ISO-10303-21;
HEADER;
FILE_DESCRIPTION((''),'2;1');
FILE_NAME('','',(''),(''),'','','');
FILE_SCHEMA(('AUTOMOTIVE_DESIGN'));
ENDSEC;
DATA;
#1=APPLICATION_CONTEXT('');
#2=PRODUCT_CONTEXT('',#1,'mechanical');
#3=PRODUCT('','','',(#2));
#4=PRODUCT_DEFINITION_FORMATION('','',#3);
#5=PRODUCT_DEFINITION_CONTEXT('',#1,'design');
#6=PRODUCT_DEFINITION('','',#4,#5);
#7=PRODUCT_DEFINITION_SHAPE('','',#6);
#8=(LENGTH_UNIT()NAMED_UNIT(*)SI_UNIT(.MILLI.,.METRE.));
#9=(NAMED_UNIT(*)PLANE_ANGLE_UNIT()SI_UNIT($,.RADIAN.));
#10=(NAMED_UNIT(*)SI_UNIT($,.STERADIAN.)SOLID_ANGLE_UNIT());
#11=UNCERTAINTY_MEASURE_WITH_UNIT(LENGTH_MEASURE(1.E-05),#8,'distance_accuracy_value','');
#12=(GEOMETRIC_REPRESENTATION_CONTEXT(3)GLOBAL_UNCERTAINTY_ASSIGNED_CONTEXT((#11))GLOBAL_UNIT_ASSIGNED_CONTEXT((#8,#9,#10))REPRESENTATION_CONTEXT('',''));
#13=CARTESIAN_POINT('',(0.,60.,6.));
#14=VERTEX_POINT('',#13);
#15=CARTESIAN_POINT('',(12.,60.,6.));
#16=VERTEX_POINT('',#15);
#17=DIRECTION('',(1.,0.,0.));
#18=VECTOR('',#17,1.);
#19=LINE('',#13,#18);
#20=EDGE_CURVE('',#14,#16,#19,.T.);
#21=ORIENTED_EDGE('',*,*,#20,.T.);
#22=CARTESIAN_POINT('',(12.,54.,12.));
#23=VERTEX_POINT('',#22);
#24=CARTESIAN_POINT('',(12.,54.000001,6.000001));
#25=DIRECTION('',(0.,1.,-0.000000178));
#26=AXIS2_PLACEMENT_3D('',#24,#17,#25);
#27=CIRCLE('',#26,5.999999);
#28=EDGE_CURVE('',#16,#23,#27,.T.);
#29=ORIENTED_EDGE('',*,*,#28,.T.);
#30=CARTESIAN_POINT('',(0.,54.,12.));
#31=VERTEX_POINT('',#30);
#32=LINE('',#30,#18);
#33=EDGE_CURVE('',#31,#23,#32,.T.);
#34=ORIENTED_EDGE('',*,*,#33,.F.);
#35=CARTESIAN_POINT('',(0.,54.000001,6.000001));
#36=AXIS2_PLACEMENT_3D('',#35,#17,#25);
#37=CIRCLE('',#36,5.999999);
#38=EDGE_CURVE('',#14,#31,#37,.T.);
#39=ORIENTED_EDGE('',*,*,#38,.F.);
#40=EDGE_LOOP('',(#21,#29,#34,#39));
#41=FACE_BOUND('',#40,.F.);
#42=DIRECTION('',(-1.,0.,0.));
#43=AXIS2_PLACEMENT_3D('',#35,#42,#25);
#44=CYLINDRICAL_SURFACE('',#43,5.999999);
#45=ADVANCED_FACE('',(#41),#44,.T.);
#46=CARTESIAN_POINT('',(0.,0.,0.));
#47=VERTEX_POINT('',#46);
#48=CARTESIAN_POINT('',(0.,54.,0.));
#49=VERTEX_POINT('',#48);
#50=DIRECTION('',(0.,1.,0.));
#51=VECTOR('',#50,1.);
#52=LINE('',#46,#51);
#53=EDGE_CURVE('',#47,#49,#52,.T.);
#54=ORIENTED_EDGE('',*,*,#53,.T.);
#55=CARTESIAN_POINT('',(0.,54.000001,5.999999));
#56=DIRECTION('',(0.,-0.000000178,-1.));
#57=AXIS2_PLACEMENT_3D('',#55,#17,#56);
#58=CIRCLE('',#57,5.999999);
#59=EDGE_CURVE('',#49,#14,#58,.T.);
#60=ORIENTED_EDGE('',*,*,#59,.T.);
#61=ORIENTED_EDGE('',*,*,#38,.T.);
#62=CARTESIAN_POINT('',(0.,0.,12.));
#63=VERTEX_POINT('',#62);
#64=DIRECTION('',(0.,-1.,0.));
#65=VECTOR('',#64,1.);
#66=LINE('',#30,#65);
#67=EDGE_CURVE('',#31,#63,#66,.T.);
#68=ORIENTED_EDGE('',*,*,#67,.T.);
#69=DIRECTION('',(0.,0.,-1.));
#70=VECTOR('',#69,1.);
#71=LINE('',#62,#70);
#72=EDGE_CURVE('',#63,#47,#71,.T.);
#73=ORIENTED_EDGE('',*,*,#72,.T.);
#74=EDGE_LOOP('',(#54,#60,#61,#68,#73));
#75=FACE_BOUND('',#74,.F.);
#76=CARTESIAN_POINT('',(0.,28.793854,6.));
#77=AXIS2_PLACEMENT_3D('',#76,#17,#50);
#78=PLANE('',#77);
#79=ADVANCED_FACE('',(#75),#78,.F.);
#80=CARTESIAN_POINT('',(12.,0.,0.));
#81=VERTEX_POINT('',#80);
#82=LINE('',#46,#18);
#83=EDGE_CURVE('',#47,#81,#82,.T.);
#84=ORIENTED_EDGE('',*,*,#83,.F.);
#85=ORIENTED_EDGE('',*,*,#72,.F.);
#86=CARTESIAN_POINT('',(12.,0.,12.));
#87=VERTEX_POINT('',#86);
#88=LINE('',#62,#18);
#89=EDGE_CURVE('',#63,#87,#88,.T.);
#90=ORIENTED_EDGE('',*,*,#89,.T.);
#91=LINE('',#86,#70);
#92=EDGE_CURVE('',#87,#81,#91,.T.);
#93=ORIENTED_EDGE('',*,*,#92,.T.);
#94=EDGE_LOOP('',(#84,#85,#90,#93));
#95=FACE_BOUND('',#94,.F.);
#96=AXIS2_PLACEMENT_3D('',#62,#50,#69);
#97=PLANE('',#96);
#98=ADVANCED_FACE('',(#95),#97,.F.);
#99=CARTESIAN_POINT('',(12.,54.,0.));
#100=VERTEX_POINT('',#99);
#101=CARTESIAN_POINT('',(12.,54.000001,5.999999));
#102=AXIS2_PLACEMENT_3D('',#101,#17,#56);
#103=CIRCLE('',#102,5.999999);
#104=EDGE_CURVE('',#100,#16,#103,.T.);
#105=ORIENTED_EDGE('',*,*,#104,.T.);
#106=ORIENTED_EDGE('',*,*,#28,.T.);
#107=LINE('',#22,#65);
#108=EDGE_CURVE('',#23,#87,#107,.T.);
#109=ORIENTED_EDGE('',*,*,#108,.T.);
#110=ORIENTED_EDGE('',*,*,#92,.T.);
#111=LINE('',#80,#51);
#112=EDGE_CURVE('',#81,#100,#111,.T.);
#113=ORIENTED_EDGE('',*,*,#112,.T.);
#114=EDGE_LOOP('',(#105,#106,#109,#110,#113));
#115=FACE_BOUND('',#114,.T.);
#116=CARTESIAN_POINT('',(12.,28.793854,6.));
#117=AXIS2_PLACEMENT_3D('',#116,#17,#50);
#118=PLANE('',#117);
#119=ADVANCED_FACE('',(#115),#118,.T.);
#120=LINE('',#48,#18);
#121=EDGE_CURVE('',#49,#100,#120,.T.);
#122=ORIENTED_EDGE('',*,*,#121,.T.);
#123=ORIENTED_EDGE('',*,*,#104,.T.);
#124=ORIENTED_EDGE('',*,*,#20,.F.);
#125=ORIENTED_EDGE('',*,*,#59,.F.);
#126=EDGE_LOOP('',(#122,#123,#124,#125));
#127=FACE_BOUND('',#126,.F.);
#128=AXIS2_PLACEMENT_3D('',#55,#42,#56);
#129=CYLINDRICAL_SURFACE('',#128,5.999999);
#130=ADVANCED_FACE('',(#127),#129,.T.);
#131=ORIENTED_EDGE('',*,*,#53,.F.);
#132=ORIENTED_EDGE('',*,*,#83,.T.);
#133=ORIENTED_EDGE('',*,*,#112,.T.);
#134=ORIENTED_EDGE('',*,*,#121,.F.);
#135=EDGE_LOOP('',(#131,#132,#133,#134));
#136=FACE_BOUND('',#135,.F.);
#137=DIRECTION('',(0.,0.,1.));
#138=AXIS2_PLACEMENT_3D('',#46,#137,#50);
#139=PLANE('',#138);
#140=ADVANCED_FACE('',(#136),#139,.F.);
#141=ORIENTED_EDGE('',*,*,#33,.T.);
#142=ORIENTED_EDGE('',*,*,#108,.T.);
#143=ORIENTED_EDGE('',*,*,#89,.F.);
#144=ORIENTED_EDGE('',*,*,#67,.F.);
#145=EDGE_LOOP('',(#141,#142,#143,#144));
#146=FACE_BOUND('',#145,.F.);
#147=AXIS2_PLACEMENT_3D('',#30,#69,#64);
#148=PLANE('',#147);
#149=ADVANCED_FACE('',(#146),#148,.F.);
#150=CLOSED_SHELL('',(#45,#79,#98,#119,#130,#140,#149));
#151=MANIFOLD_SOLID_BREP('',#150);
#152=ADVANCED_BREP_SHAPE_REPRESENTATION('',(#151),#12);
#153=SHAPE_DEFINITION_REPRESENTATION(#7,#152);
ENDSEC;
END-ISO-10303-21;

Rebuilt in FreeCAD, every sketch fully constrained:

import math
import FreeCAD as App
import Part
import Sketcher
Q = App.Units.Quantity

doc = App.newDocument("Part")
body = doc.addObject("PartDesign::Body", "Body")

# Sketch on YZ plane
sketch1 = body.newObject("Sketcher::SketchObject", "Sketch")
sketch1.AttachmentSupport = (doc.getObject("YZ_Plane"), [""])
sketch1.MapMode = "FlatFace"
sketch1.addGeometry([
    Part.LineSegment(App.Vector(0, 12, 0), App.Vector(0, 0, 0)),  # 0
    Part.LineSegment(App.Vector(0, 0, 0), App.Vector(54, 0, 0)),  # 1
    Part.ArcOfCircle(Part.Circle(App.Vector(54, 6, 0), App.Vector(0, 0, 1), 6), math.radians(-90), math.radians(0)),  # 2
    Part.ArcOfCircle(Part.Circle(App.Vector(54, 6, 0), App.Vector(0, 0, 1), 6), math.radians(0), math.radians(90)),  # 3
    Part.LineSegment(App.Vector(54, 12, 0), App.Vector(0, 12, 0)),  # 4
], False)
sketch1.addConstraint([
    Sketcher.Constraint("Coincident", 0, 2, 1, 1),
    Sketcher.Constraint("Tangent", 1, 2, 2, 1),
    Sketcher.Constraint("Tangent", 2, 2, 3, 1),
    Sketcher.Constraint("Tangent", 3, 2, 4, 1),
    Sketcher.Constraint("Coincident", 4, 2, 0, 1),
    Sketcher.Constraint("Vertical", 0),
    Sketcher.Constraint("Horizontal", 1),
    Sketcher.Constraint("Horizontal", 4),
    Sketcher.Constraint("Coincident", 0, 2, -1, 1),
    Sketcher.Constraint("Equal", 2, 3),
    Sketcher.Constraint("Horizontal", 3, 3, 2, 2),
    Sketcher.Constraint("Radius", 2, Q("5.999999 mm")),
    Sketcher.Constraint("DistanceX", 1, 1, 1, 2, Q("54 mm")),
])
pad1 = body.newObject("PartDesign::Pad", "Pad")
pad1.Profile = sketch1
pad1.Length = 12

doc.recompute()
